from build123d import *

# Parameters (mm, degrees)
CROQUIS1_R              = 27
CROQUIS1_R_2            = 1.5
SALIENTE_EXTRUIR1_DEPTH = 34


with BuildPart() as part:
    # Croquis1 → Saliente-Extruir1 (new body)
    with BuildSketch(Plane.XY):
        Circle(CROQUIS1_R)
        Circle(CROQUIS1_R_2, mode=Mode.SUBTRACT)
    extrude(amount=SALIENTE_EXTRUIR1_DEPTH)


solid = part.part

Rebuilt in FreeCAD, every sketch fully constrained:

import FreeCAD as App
import Part
import Sketcher
Q = App.Units.Quantity

doc = App.newDocument("Part")
body = doc.addObject("PartDesign::Body", "Body")

# Sketch on XY plane
sketch1 = body.newObject("Sketcher::SketchObject", "Sketch")
sketch1.AttachmentSupport = (doc.getObject("XY_Plane"), [""])
sketch1.MapMode = "FlatFace"
sketch1.addGeometry([
    Part.Circle(App.Vector(0, 0, 0), App.Vector(0, 0, 1), 27),
    Part.Circle(App.Vector(0, 0, 0), App.Vector(0, 0, 1), 1.5),
], False)
sketch1.addConstraint([
    Sketcher.Constraint("Coincident", 0, 3, -1, 1),
    Sketcher.Constraint("Coincident", 1, 3, -1, 1),
    Sketcher.Constraint("Diameter", 0, Q("54 mm")),
    Sketcher.Constraint("Diameter", 1, Q("3 mm")),
])
pad1 = body.newObject("PartDesign::Pad", "Pad")
pad1.Profile = sketch1
pad1.Length = 34

doc.recompute()
